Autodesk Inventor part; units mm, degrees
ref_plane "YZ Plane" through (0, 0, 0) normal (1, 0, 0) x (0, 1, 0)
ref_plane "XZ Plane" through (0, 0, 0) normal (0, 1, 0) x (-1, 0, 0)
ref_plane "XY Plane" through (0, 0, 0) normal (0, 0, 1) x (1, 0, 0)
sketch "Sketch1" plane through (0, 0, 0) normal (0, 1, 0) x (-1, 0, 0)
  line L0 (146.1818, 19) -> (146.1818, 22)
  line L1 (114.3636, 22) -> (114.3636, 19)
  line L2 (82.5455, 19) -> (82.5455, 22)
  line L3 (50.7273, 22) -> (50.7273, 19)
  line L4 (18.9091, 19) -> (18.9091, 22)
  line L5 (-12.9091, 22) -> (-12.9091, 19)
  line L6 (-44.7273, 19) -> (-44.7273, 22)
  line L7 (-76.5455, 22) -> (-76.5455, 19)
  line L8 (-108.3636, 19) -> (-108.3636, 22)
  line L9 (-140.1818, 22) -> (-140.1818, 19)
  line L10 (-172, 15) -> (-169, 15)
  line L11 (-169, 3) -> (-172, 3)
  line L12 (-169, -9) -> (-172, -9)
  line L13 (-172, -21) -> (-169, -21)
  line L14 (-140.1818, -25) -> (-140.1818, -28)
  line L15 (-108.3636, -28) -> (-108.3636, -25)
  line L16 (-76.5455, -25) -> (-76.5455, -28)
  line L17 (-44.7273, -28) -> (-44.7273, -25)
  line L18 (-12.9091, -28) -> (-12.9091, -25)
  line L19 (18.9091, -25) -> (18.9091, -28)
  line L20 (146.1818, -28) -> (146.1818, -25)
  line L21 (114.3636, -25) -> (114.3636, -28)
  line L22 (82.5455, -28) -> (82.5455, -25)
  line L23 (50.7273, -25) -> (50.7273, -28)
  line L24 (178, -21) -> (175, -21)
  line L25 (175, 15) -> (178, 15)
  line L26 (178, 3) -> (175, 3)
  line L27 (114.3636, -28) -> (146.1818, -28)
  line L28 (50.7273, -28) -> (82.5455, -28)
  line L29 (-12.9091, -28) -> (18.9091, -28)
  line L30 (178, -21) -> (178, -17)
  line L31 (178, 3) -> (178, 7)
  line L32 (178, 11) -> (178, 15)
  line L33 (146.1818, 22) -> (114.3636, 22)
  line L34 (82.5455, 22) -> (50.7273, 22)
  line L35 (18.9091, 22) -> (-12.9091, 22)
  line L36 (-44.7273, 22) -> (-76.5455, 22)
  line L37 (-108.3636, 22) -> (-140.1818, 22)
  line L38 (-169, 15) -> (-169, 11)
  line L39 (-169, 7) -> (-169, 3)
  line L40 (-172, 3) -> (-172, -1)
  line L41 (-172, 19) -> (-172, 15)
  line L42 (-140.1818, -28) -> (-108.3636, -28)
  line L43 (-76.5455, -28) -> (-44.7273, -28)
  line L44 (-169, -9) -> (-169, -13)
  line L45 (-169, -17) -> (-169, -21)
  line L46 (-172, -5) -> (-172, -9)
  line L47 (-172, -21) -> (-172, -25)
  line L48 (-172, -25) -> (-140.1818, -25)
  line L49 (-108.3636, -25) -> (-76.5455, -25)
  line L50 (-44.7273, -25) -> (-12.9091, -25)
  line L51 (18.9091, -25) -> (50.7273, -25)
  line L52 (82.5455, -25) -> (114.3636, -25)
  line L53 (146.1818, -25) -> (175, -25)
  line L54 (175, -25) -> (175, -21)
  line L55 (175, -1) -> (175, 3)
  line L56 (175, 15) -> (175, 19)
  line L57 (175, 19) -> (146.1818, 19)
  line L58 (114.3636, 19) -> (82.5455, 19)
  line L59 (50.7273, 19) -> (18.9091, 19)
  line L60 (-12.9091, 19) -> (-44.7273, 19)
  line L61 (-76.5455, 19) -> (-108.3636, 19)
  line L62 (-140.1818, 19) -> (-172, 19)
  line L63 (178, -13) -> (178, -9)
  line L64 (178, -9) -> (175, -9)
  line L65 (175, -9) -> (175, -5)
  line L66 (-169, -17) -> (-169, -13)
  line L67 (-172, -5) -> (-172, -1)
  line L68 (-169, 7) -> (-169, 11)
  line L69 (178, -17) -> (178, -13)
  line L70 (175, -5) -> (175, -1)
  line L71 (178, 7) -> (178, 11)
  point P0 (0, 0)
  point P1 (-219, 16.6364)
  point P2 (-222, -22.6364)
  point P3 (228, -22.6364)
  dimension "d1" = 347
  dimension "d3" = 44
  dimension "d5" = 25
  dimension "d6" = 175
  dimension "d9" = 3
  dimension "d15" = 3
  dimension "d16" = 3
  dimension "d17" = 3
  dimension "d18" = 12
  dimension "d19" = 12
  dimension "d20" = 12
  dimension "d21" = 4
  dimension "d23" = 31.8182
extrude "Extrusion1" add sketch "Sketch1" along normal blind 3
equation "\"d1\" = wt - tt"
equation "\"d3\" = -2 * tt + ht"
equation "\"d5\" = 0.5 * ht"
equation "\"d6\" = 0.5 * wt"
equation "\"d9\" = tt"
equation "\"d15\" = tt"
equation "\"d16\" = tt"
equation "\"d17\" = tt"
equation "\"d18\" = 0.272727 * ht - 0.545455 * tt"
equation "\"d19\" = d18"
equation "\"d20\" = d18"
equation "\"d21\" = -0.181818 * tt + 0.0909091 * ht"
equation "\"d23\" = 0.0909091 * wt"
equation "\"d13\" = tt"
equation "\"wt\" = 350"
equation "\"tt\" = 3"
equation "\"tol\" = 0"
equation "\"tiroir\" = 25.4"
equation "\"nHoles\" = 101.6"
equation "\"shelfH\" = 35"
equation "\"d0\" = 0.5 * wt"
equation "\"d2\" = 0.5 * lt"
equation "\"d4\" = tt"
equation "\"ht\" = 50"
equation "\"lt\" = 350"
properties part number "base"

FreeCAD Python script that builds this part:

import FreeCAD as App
import Part
import Sketcher

V = App.Vector
Q = App.Units.Quantity

doc = App.newDocument("Part")
params = doc.addObject("Spreadsheet::Sheet", "Params")
for row, (alias, value) in enumerate([
    ("sketch1_width", "3 mm"),
    ("sketch1_height", "4 mm"),
    ("sketch1_height2", "12 mm"),
    ("pad1_length", "3 mm"),
], start=1):
    params.set(f"A{row}", alias)
    params.set(f"B{row}", "=" + value)
    params.setAlias(f"B{row}", alias)

body = doc.addObject("PartDesign::Body", "Body")

# Sketch on XZ plane
sketch1 = body.newObject("Sketcher::SketchObject", "Sketch")
sketch1.AttachmentSupport = (doc.getObject("XZ_Plane"), [""])
sketch1.MapMode = "FlatFace"
sketch1.addGeometry([
    Part.LineSegment(V(-175, 19, 0), V(-146.2, 19, 0)),  # 0
    Part.LineSegment(V(-146.2, 19, 0), V(-146.2, 22, 0)),  # 1
    Part.LineSegment(V(-146.2, 22, 0), V(-114.4, 22, 0)),  # 2
    Part.LineSegment(V(-114.4, 22, 0), V(-114.4, 19, 0)),  # 3
    Part.LineSegment(V(-114.4, 19, 0), V(-82.5, 19, 0)),  # 4
    Part.LineSegment(V(-82.5, 19, 0), V(-82.5, 22, 0)),  # 5
    Part.LineSegment(V(-82.5, 22, 0), V(-50.7, 22, 0)),  # 6
    Part.LineSegment(V(-50.7, 22, 0), V(-50.7, 19, 0)),  # 7
    Part.LineSegment(V(-50.7, 19, 0), V(-18.9, 19, 0)),  # 8
    Part.LineSegment(V(-18.9, 19, 0), V(-18.9, 22, 0)),  # 9
    Part.LineSegment(V(-18.9, 22, 0), V(12.9, 22, 0)),  # 10
    Part.LineSegment(V(12.9, 22, 0), V(12.9, 19, 0)),  # 11
    Part.LineSegment(V(12.9, 19, 0), V(44.7, 19, 0)),  # 12
    Part.LineSegment(V(44.7, 19, 0), V(44.7, 22, 0)),  # 13
    Part.LineSegment(V(44.7, 22, 0), V(76.5, 22, 0)),  # 14
    Part.LineSegment(V(76.5, 22, 0), V(76.5, 19, 0)),  # 15
    Part.LineSegment(V(76.5, 19, 0), V(108.4, 19, 0)),  # 16
    Part.LineSegment(V(108.4, 19, 0), V(108.4, 22, 0)),  # 17
    Part.LineSegment(V(108.4, 22, 0), V(140.2, 22, 0)),  # 18
    Part.LineSegment(V(140.2, 22, 0), V(140.2, 19, 0)),  # 19
    Part.LineSegment(V(140.2, 19, 0), V(172, 19, 0)),  # 20
    Part.LineSegment(V(172, 19, 0), V(172, 15, 0)),  # 21
    Part.LineSegment(V(172, 15, 0), V(169, 15, 0)),  # 22
    Part.LineSegment(V(169, 15, 0), V(169, 3, 0)),  # 23
    Part.LineSegment(V(169, 3, 0), V(172, 3, 0)),  # 24
    Part.LineSegment(V(172, 3, 0), V(172, -9, 0)),  # 25
    Part.LineSegment(V(172, -9, 0), V(169, -9, 0)),  # 26
    Part.LineSegment(V(169, -9, 0), V(169, -21, 0)),  # 27
    Part.LineSegment(V(169, -21, 0), V(172, -21, 0)),  # 28
    Part.LineSegment(V(172, -21, 0), V(172, -25, 0)),  # 29
    Part.LineSegment(V(172, -25, 0), V(140.2, -25, 0)),  # 30
    Part.LineSegment(V(140.2, -25, 0), V(140.2, -28, 0)),  # 31
    Part.LineSegment(V(140.2, -28, 0), V(108.4, -28, 0)),  # 32
    Part.LineSegment(V(108.4, -28, 0), V(108.4, -25, 0)),  # 33
    Part.LineSegment(V(108.4, -25, 0), V(76.5, -25, 0)),  # 34
    Part.LineSegment(V(76.5, -25, 0), V(76.5, -28, 0)),  # 35
    Part.LineSegment(V(76.5, -28, 0), V(44.7, -28, 0)),  # 36
    Part.LineSegment(V(44.7, -28, 0), V(44.7, -25, 0)),  # 37
    Part.LineSegment(V(44.7, -25, 0), V(12.9, -25, 0)),  # 38
    Part.LineSegment(V(12.9, -25, 0), V(12.9, -28, 0)),  # 39
    Part.LineSegment(V(12.9, -28, 0), V(-18.9, -28, 0)),  # 40
    Part.LineSegment(V(-18.9, -28, 0), V(-18.9, -25, 0)),  # 41
    Part.LineSegment(V(-18.9, -25, 0), V(-50.7, -25, 0)),  # 42
    Part.LineSegment(V(-50.7, -25, 0), V(-50.7, -28, 0)),  # 43
    Part.LineSegment(V(-50.7, -28, 0), V(-82.5, -28, 0)),  # 44
    Part.LineSegment(V(-82.5, -28, 0), V(-82.5, -25, 0)),  # 45
    Part.LineSegment(V(-82.5, -25, 0), V(-114.4, -25, 0)),  # 46
    Part.LineSegment(V(-114.4, -25, 0), V(-114.4, -28, 0)),  # 47
    Part.LineSegment(V(-114.4, -28, 0), V(-146.2, -28, 0)),  # 48
    Part.LineSegment(V(-146.2, -28, 0), V(-146.2, -25, 0)),  # 49
    Part.LineSegment(V(-146.2, -25, 0), V(-175, -25, 0)),  # 50
    Part.LineSegment(V(-175, -25, 0), V(-175, -21, 0)),  # 51
    Part.LineSegment(V(-175, -21, 0), V(-178, -21, 0)),  # 52
    Part.LineSegment(V(-178, -21, 0), V(-178, -9, 0)),  # 53
    Part.LineSegment(V(-178, -9, 0), V(-175, -9, 0)),  # 54
    Part.LineSegment(V(-175, -9, 0), V(-175, 3, 0)),  # 55
    Part.LineSegment(V(-175, 3, 0), V(-178, 3, 0)),  # 56
    Part.LineSegment(V(-178, 3, 0), V(-178, 15, 0)),  # 57
    Part.LineSegment(V(-178, 15, 0), V(-175, 15, 0)),  # 58
    Part.LineSegment(V(-175, 15, 0), V(-175, 19, 0)),  # 59
], False)
sketch1.addConstraint([
    Sketcher.Constraint("Coincident", 0, 2, 1, 1),
    Sketcher.Constraint("Coincident", 1, 2, 2, 1),
    Sketcher.Constraint("Coincident", 2, 2, 3, 1),
    Sketcher.Constraint("Coincident", 3, 2, 4, 1),
    Sketcher.Constraint("Coincident", 4, 2, 5, 1),
    Sketcher.Constraint("Coincident", 5, 2, 6, 1),
    Sketcher.Constraint("Coincident", 6, 2, 7, 1),
    Sketcher.Constraint("Coincident", 7, 2, 8, 1),
    Sketcher.Constraint("Coincident", 8, 2, 9, 1),
    Sketcher.Constraint("Coincident", 9, 2, 10, 1),
    Sketcher.Constraint("Coincident", 10, 2, 11, 1),
    Sketcher.Constraint("Coincident", 11, 2, 12, 1),
    Sketcher.Constraint("Coincident", 12, 2, 13, 1),
    Sketcher.Constraint("Coincident", 13, 2, 14, 1),
    Sketcher.Constraint("Coincident", 14, 2, 15, 1),
    Sketcher.Constraint("Coincident", 15, 2, 16, 1),
    Sketcher.Constraint("Coincident", 16, 2, 17, 1),
    Sketcher.Constraint("Coincident", 17, 2, 18, 1),
    Sketcher.Constraint("Coincident", 18, 2, 19, 1),
    Sketcher.Constraint("Coincident", 19, 2, 20, 1),
    Sketcher.Constraint("Coincident", 20, 2, 21, 1),
    Sketcher.Constraint("Coincident", 21, 2, 22, 1),
    Sketcher.Constraint("Coincident", 22, 2, 23, 1),
    Sketcher.Constraint("Coincident", 23, 2, 24, 1),
    Sketcher.Constraint("Coincident", 24, 2, 25, 1),
    Sketcher.Constraint("Coincident", 25, 2, 26, 1),
    Sketcher.Constraint("Coincident", 26, 2, 27, 1),
    Sketcher.Constraint("Coincident", 27, 2, 28, 1),
    Sketcher.Constraint("Coincident", 28, 2, 29, 1),
    Sketcher.Constraint("Coincident", 29, 2, 30, 1),
    Sketcher.Constraint("Coincident", 30, 2, 31, 1),
    Sketcher.Constraint("Coincident", 31, 2, 32, 1),
    Sketcher.Constraint("Coincident", 32, 2, 33, 1),
    Sketcher.Constraint("Coincident", 33, 2, 34, 1),
    Sketcher.Constraint("Coincident", 34, 2, 35, 1),
    Sketcher.Constraint("Coincident", 35, 2, 36, 1),
    Sketcher.Constraint("Coincident", 36, 2, 37, 1),
    Sketcher.Constraint("Coincident", 37, 2, 38, 1),
    Sketcher.Constraint("Coincident", 38, 2, 39, 1),
    Sketcher.Constraint("Coincident", 39, 2, 40, 1),
    Sketcher.Constraint("Coincident", 40, 2, 41, 1),
    Sketcher.Constraint("Coincident", 41, 2, 42, 1),
    Sketcher.Constraint("Coincident", 42, 2, 43, 1),
    Sketcher.Constraint("Coincident", 43, 2, 44, 1),
    Sketcher.Constraint("Coincident", 44, 2, 45, 1),
    Sketcher.Constraint("Coincident", 45, 2, 46, 1),
    Sketcher.Constraint("Coincident", 46, 2, 47, 1),
    Sketcher.Constraint("Coincident", 47, 2, 48, 1),
    Sketcher.Constraint("Coincident", 48, 2, 49, 1),
    Sketcher.Constraint("Coincident", 49, 2, 50, 1),
    Sketcher.Constraint("Coincident", 50, 2, 51, 1),
    Sketcher.Constraint("Coincident", 51, 2, 52, 1),
    Sketcher.Constraint("Coincident", 52, 2, 53, 1),
    Sketcher.Constraint("Coincident", 53, 2, 54, 1),
    Sketcher.Constraint("Coincident", 54, 2, 55, 1),
    Sketcher.Constraint("Coincident", 55, 2, 56, 1),
    Sketcher.Constraint("Coincident", 56, 2, 57, 1),
    Sketcher.Constraint("Coincident", 57, 2, 58, 1),
    Sketcher.Constraint("Coincident", 58, 2, 59, 1),
    Sketcher.Constraint("Coincident", 59, 2, 0, 1),
    Sketcher.Constraint("Horizontal", 0),
    Sketcher.Constraint("Vertical", 1),
    Sketcher.Constraint("Horizontal", 2),
    Sketcher.Constraint("Vertical", 3),
    Sketcher.Constraint("Horizontal", 4),
    Sketcher.Constraint("Vertical", 5),
    Sketcher.Constraint("Horizontal", 6),
    Sketcher.Constraint("Vertical", 7),
    Sketcher.Constraint("Horizontal", 8),
    Sketcher.Constraint("Vertical", 9),
    Sketcher.Constraint("Horizontal", 10),
    Sketcher.Constraint("Vertical", 11),
    Sketcher.Constraint("Horizontal", 12),
    Sketcher.Constraint("Vertical", 13),
    Sketcher.Constraint("Horizontal", 14),
    Sketcher.Constraint("Vertical", 15),
    Sketcher.Constraint("Horizontal", 16),
    Sketcher.Constraint("Vertical", 17),
    Sketcher.Constraint("Horizontal", 18),
    Sketcher.Constraint("Vertical", 19),
    Sketcher.Constraint("Horizontal", 20),
    Sketcher.Constraint("Vertical", 21),
    Sketcher.Constraint("Horizontal", 22),
    Sketcher.Constraint("Vertical", 23),
    Sketcher.Constraint("Horizontal", 24),
    Sketcher.Constraint("Vertical", 25),
    Sketcher.Constraint("Horizontal", 26),
    Sketcher.Constraint("Vertical", 27),
    Sketcher.Constraint("Horizontal", 28),
    Sketcher.Constraint("Vertical", 29),
    Sketcher.Constraint("Horizontal", 30),
    Sketcher.Constraint("Vertical", 31),
    Sketcher.Constraint("Horizontal", 32),
    Sketcher.Constraint("Vertical", 33),
    Sketcher.Constraint("Horizontal", 34),
    Sketcher.Constraint("Vertical", 35),
    Sketcher.Constraint("Horizontal", 36),
    Sketcher.Constraint("Vertical", 37),
    Sketcher.Constraint("Horizontal", 38),
    Sketcher.Constraint("Vertical", 39),
    Sketcher.Constraint("Horizontal", 40),
    Sketcher.Constraint("Vertical", 41),
    Sketcher.Constraint("Horizontal", 42),
    Sketcher.Constraint("Vertical", 43),
    Sketcher.Constraint("Horizontal", 44),
    Sketcher.Constraint("Vertical", 45),
    Sketcher.Constraint("Horizontal", 46),
    Sketcher.Constraint("Vertical", 47),
    Sketcher.Constraint("Horizontal", 48),
    Sketcher.Constraint("Vertical", 49),
    Sketcher.Constraint("Horizontal", 50),
    Sketcher.Constraint("Vertical", 51),
    Sketcher.Constraint("Horizontal", 52),
    Sketcher.Constraint("Vertical", 53),
    Sketcher.Constraint("Horizontal", 54),
    Sketcher.Constraint("Vertical", 55),
    Sketcher.Constraint("Horizontal", 56),
    Sketcher.Constraint("Vertical", 57),
    Sketcher.Constraint("Horizontal", 58),
    Sketcher.Constraint("Vertical", 59),
    Sketcher.Constraint("Horizontal", 0, 2, 3, 2),
    Sketcher.Constraint("Horizontal", 2, 2, 5, 2),
    Sketcher.Constraint("Horizontal", 4, 2, 7, 2),
    Sketcher.Constraint("Horizontal", 6, 2, 9, 2),
    Sketcher.Constraint("Horizontal", 8, 2, 11, 2),
    Sketcher.Constraint("Horizontal", 10, 2, 13, 2),
    Sketcher.Constraint("Horizontal", 12, 2, 15, 2),
    Sketcher.Constraint("Horizontal", 14, 2, 17, 2),
    Sketcher.Constraint("Horizontal", 16, 2, 19, 2),
    Sketcher.Constraint("Horizontal", 30, 2, 33, 2),
    Sketcher.Constraint("Horizontal", 32, 2, 35, 2),
    Sketcher.Constraint("Horizontal", 34, 2, 37, 2),
    Sketcher.Constraint("Horizontal", 36, 2, 39, 2),
    Sketcher.Constraint("Horizontal", 38, 2, 41, 2),
    Sketcher.Constraint("Horizontal", 40, 2, 43, 2),
    Sketcher.Constraint("Horizontal", 42, 2, 45, 2),
    Sketcher.Constraint("Horizontal", 44, 2, 47, 2),
    Sketcher.Constraint("Horizontal", 46, 2, 49, 2),
    Sketcher.Constraint("Horizontal", 28, 2, 51, 2),
    Sketcher.Constraint("Horizontal", 26, 2, 53, 2),
    Sketcher.Constraint("Horizontal", 24, 2, 55, 2),
    Sketcher.Constraint("Horizontal", 22, 2, 57, 2),
    Sketcher.Constraint("Vertical", 21, 2, 24, 2),
    Sketcher.Constraint("Vertical", 23, 2, 26, 2),
    Sketcher.Constraint("Vertical", 25, 2, 28, 2),
    Sketcher.Constraint("Vertical", 19, 2, 30, 2),
    Sketcher.Constraint("Vertical", 17, 2, 32, 2),
    Sketcher.Constraint("Vertical", 15, 2, 34, 2),
    Sketcher.Constraint("Vertical", 13, 2, 36, 2),
    Sketcher.Constraint("Vertical", 11, 2, 38, 2),
    Sketcher.Constraint("Vertical", 9, 2, 40, 2),
    Sketcher.Constraint("Vertical", 7, 2, 42, 2),
    Sketcher.Constraint("Vertical", 5, 2, 44, 2),
    Sketcher.Constraint("Vertical", 3, 2, 46, 2),
    Sketcher.Constraint("Vertical", 1, 2, 48, 2),
    Sketcher.Constraint("Vertical", 51, 2, 54, 2),
    Sketcher.Constraint("Vertical", 53, 2, 56, 2),
    Sketcher.Constraint("Vertical", 55, 2, 58, 2),
    Sketcher.Constraint("Equal", 2, 4),
    Sketcher.Constraint("Equal", 4, 6),
    Sketcher.Constraint("Equal", 6, 8),
    Sketcher.Constraint("Equal", 8, 10),
    Sketcher.Constraint("Equal", 10, 12),
    Sketcher.Constraint("Equal", 12, 14),
    Sketcher.Constraint("Equal", 14, 16),
    Sketcher.Constraint("Equal", 16, 18),
    Sketcher.Constraint("Equal", 18, 20),
    Sketcher.Constraint("Equal", 28, 52),
    Sketcher.Constraint("Equal", 58, 1),
    Sketcher.Constraint("Equal", 23, 25),
    Sketcher.Constraint("Equal", 25, 27),
    Sketcher.Constraint("Equal", 21, 29),
    Sketcher.Constraint("Equal", 19, 31),
    Sketcher.Constraint("DistanceX", 22, 2, 22, 1, Q("3 mm")),
    Sketcher.Constraint("DistanceY", 21, 2, 21, 1, Q("4 mm")),
    Sketcher.Constraint("DistanceY", 23, 2, 23, 1, Q("12 mm")),
    Sketcher.Constraint("DistanceY", -1, 1, 23, 2, Q("3 mm")),
    Sketcher.Constraint("DistanceX", 50, 2, -1, 1, Q("175 mm")),
    Sketcher.Constraint("DistanceX", 4, 1, 4, 2, Q("31.818 mm")),
    Sketcher.Constraint("DistanceX", -1, 1, 20, 2, Q("172 mm")),
])
sketch1.setExpression("Constraints[173]", "Params.sketch1_width")
sketch1.setExpression("Constraints[174]", "Params.sketch1_height")
sketch1.setExpression("Constraints[175]", "Params.sketch1_height2")
pad1 = body.newObject("PartDesign::Pad", "Pad")
pad1.Profile = sketch1
pad1.setExpression("Length", "Params.pad1_length")
pad1.Reversed = True

doc.recompute()
